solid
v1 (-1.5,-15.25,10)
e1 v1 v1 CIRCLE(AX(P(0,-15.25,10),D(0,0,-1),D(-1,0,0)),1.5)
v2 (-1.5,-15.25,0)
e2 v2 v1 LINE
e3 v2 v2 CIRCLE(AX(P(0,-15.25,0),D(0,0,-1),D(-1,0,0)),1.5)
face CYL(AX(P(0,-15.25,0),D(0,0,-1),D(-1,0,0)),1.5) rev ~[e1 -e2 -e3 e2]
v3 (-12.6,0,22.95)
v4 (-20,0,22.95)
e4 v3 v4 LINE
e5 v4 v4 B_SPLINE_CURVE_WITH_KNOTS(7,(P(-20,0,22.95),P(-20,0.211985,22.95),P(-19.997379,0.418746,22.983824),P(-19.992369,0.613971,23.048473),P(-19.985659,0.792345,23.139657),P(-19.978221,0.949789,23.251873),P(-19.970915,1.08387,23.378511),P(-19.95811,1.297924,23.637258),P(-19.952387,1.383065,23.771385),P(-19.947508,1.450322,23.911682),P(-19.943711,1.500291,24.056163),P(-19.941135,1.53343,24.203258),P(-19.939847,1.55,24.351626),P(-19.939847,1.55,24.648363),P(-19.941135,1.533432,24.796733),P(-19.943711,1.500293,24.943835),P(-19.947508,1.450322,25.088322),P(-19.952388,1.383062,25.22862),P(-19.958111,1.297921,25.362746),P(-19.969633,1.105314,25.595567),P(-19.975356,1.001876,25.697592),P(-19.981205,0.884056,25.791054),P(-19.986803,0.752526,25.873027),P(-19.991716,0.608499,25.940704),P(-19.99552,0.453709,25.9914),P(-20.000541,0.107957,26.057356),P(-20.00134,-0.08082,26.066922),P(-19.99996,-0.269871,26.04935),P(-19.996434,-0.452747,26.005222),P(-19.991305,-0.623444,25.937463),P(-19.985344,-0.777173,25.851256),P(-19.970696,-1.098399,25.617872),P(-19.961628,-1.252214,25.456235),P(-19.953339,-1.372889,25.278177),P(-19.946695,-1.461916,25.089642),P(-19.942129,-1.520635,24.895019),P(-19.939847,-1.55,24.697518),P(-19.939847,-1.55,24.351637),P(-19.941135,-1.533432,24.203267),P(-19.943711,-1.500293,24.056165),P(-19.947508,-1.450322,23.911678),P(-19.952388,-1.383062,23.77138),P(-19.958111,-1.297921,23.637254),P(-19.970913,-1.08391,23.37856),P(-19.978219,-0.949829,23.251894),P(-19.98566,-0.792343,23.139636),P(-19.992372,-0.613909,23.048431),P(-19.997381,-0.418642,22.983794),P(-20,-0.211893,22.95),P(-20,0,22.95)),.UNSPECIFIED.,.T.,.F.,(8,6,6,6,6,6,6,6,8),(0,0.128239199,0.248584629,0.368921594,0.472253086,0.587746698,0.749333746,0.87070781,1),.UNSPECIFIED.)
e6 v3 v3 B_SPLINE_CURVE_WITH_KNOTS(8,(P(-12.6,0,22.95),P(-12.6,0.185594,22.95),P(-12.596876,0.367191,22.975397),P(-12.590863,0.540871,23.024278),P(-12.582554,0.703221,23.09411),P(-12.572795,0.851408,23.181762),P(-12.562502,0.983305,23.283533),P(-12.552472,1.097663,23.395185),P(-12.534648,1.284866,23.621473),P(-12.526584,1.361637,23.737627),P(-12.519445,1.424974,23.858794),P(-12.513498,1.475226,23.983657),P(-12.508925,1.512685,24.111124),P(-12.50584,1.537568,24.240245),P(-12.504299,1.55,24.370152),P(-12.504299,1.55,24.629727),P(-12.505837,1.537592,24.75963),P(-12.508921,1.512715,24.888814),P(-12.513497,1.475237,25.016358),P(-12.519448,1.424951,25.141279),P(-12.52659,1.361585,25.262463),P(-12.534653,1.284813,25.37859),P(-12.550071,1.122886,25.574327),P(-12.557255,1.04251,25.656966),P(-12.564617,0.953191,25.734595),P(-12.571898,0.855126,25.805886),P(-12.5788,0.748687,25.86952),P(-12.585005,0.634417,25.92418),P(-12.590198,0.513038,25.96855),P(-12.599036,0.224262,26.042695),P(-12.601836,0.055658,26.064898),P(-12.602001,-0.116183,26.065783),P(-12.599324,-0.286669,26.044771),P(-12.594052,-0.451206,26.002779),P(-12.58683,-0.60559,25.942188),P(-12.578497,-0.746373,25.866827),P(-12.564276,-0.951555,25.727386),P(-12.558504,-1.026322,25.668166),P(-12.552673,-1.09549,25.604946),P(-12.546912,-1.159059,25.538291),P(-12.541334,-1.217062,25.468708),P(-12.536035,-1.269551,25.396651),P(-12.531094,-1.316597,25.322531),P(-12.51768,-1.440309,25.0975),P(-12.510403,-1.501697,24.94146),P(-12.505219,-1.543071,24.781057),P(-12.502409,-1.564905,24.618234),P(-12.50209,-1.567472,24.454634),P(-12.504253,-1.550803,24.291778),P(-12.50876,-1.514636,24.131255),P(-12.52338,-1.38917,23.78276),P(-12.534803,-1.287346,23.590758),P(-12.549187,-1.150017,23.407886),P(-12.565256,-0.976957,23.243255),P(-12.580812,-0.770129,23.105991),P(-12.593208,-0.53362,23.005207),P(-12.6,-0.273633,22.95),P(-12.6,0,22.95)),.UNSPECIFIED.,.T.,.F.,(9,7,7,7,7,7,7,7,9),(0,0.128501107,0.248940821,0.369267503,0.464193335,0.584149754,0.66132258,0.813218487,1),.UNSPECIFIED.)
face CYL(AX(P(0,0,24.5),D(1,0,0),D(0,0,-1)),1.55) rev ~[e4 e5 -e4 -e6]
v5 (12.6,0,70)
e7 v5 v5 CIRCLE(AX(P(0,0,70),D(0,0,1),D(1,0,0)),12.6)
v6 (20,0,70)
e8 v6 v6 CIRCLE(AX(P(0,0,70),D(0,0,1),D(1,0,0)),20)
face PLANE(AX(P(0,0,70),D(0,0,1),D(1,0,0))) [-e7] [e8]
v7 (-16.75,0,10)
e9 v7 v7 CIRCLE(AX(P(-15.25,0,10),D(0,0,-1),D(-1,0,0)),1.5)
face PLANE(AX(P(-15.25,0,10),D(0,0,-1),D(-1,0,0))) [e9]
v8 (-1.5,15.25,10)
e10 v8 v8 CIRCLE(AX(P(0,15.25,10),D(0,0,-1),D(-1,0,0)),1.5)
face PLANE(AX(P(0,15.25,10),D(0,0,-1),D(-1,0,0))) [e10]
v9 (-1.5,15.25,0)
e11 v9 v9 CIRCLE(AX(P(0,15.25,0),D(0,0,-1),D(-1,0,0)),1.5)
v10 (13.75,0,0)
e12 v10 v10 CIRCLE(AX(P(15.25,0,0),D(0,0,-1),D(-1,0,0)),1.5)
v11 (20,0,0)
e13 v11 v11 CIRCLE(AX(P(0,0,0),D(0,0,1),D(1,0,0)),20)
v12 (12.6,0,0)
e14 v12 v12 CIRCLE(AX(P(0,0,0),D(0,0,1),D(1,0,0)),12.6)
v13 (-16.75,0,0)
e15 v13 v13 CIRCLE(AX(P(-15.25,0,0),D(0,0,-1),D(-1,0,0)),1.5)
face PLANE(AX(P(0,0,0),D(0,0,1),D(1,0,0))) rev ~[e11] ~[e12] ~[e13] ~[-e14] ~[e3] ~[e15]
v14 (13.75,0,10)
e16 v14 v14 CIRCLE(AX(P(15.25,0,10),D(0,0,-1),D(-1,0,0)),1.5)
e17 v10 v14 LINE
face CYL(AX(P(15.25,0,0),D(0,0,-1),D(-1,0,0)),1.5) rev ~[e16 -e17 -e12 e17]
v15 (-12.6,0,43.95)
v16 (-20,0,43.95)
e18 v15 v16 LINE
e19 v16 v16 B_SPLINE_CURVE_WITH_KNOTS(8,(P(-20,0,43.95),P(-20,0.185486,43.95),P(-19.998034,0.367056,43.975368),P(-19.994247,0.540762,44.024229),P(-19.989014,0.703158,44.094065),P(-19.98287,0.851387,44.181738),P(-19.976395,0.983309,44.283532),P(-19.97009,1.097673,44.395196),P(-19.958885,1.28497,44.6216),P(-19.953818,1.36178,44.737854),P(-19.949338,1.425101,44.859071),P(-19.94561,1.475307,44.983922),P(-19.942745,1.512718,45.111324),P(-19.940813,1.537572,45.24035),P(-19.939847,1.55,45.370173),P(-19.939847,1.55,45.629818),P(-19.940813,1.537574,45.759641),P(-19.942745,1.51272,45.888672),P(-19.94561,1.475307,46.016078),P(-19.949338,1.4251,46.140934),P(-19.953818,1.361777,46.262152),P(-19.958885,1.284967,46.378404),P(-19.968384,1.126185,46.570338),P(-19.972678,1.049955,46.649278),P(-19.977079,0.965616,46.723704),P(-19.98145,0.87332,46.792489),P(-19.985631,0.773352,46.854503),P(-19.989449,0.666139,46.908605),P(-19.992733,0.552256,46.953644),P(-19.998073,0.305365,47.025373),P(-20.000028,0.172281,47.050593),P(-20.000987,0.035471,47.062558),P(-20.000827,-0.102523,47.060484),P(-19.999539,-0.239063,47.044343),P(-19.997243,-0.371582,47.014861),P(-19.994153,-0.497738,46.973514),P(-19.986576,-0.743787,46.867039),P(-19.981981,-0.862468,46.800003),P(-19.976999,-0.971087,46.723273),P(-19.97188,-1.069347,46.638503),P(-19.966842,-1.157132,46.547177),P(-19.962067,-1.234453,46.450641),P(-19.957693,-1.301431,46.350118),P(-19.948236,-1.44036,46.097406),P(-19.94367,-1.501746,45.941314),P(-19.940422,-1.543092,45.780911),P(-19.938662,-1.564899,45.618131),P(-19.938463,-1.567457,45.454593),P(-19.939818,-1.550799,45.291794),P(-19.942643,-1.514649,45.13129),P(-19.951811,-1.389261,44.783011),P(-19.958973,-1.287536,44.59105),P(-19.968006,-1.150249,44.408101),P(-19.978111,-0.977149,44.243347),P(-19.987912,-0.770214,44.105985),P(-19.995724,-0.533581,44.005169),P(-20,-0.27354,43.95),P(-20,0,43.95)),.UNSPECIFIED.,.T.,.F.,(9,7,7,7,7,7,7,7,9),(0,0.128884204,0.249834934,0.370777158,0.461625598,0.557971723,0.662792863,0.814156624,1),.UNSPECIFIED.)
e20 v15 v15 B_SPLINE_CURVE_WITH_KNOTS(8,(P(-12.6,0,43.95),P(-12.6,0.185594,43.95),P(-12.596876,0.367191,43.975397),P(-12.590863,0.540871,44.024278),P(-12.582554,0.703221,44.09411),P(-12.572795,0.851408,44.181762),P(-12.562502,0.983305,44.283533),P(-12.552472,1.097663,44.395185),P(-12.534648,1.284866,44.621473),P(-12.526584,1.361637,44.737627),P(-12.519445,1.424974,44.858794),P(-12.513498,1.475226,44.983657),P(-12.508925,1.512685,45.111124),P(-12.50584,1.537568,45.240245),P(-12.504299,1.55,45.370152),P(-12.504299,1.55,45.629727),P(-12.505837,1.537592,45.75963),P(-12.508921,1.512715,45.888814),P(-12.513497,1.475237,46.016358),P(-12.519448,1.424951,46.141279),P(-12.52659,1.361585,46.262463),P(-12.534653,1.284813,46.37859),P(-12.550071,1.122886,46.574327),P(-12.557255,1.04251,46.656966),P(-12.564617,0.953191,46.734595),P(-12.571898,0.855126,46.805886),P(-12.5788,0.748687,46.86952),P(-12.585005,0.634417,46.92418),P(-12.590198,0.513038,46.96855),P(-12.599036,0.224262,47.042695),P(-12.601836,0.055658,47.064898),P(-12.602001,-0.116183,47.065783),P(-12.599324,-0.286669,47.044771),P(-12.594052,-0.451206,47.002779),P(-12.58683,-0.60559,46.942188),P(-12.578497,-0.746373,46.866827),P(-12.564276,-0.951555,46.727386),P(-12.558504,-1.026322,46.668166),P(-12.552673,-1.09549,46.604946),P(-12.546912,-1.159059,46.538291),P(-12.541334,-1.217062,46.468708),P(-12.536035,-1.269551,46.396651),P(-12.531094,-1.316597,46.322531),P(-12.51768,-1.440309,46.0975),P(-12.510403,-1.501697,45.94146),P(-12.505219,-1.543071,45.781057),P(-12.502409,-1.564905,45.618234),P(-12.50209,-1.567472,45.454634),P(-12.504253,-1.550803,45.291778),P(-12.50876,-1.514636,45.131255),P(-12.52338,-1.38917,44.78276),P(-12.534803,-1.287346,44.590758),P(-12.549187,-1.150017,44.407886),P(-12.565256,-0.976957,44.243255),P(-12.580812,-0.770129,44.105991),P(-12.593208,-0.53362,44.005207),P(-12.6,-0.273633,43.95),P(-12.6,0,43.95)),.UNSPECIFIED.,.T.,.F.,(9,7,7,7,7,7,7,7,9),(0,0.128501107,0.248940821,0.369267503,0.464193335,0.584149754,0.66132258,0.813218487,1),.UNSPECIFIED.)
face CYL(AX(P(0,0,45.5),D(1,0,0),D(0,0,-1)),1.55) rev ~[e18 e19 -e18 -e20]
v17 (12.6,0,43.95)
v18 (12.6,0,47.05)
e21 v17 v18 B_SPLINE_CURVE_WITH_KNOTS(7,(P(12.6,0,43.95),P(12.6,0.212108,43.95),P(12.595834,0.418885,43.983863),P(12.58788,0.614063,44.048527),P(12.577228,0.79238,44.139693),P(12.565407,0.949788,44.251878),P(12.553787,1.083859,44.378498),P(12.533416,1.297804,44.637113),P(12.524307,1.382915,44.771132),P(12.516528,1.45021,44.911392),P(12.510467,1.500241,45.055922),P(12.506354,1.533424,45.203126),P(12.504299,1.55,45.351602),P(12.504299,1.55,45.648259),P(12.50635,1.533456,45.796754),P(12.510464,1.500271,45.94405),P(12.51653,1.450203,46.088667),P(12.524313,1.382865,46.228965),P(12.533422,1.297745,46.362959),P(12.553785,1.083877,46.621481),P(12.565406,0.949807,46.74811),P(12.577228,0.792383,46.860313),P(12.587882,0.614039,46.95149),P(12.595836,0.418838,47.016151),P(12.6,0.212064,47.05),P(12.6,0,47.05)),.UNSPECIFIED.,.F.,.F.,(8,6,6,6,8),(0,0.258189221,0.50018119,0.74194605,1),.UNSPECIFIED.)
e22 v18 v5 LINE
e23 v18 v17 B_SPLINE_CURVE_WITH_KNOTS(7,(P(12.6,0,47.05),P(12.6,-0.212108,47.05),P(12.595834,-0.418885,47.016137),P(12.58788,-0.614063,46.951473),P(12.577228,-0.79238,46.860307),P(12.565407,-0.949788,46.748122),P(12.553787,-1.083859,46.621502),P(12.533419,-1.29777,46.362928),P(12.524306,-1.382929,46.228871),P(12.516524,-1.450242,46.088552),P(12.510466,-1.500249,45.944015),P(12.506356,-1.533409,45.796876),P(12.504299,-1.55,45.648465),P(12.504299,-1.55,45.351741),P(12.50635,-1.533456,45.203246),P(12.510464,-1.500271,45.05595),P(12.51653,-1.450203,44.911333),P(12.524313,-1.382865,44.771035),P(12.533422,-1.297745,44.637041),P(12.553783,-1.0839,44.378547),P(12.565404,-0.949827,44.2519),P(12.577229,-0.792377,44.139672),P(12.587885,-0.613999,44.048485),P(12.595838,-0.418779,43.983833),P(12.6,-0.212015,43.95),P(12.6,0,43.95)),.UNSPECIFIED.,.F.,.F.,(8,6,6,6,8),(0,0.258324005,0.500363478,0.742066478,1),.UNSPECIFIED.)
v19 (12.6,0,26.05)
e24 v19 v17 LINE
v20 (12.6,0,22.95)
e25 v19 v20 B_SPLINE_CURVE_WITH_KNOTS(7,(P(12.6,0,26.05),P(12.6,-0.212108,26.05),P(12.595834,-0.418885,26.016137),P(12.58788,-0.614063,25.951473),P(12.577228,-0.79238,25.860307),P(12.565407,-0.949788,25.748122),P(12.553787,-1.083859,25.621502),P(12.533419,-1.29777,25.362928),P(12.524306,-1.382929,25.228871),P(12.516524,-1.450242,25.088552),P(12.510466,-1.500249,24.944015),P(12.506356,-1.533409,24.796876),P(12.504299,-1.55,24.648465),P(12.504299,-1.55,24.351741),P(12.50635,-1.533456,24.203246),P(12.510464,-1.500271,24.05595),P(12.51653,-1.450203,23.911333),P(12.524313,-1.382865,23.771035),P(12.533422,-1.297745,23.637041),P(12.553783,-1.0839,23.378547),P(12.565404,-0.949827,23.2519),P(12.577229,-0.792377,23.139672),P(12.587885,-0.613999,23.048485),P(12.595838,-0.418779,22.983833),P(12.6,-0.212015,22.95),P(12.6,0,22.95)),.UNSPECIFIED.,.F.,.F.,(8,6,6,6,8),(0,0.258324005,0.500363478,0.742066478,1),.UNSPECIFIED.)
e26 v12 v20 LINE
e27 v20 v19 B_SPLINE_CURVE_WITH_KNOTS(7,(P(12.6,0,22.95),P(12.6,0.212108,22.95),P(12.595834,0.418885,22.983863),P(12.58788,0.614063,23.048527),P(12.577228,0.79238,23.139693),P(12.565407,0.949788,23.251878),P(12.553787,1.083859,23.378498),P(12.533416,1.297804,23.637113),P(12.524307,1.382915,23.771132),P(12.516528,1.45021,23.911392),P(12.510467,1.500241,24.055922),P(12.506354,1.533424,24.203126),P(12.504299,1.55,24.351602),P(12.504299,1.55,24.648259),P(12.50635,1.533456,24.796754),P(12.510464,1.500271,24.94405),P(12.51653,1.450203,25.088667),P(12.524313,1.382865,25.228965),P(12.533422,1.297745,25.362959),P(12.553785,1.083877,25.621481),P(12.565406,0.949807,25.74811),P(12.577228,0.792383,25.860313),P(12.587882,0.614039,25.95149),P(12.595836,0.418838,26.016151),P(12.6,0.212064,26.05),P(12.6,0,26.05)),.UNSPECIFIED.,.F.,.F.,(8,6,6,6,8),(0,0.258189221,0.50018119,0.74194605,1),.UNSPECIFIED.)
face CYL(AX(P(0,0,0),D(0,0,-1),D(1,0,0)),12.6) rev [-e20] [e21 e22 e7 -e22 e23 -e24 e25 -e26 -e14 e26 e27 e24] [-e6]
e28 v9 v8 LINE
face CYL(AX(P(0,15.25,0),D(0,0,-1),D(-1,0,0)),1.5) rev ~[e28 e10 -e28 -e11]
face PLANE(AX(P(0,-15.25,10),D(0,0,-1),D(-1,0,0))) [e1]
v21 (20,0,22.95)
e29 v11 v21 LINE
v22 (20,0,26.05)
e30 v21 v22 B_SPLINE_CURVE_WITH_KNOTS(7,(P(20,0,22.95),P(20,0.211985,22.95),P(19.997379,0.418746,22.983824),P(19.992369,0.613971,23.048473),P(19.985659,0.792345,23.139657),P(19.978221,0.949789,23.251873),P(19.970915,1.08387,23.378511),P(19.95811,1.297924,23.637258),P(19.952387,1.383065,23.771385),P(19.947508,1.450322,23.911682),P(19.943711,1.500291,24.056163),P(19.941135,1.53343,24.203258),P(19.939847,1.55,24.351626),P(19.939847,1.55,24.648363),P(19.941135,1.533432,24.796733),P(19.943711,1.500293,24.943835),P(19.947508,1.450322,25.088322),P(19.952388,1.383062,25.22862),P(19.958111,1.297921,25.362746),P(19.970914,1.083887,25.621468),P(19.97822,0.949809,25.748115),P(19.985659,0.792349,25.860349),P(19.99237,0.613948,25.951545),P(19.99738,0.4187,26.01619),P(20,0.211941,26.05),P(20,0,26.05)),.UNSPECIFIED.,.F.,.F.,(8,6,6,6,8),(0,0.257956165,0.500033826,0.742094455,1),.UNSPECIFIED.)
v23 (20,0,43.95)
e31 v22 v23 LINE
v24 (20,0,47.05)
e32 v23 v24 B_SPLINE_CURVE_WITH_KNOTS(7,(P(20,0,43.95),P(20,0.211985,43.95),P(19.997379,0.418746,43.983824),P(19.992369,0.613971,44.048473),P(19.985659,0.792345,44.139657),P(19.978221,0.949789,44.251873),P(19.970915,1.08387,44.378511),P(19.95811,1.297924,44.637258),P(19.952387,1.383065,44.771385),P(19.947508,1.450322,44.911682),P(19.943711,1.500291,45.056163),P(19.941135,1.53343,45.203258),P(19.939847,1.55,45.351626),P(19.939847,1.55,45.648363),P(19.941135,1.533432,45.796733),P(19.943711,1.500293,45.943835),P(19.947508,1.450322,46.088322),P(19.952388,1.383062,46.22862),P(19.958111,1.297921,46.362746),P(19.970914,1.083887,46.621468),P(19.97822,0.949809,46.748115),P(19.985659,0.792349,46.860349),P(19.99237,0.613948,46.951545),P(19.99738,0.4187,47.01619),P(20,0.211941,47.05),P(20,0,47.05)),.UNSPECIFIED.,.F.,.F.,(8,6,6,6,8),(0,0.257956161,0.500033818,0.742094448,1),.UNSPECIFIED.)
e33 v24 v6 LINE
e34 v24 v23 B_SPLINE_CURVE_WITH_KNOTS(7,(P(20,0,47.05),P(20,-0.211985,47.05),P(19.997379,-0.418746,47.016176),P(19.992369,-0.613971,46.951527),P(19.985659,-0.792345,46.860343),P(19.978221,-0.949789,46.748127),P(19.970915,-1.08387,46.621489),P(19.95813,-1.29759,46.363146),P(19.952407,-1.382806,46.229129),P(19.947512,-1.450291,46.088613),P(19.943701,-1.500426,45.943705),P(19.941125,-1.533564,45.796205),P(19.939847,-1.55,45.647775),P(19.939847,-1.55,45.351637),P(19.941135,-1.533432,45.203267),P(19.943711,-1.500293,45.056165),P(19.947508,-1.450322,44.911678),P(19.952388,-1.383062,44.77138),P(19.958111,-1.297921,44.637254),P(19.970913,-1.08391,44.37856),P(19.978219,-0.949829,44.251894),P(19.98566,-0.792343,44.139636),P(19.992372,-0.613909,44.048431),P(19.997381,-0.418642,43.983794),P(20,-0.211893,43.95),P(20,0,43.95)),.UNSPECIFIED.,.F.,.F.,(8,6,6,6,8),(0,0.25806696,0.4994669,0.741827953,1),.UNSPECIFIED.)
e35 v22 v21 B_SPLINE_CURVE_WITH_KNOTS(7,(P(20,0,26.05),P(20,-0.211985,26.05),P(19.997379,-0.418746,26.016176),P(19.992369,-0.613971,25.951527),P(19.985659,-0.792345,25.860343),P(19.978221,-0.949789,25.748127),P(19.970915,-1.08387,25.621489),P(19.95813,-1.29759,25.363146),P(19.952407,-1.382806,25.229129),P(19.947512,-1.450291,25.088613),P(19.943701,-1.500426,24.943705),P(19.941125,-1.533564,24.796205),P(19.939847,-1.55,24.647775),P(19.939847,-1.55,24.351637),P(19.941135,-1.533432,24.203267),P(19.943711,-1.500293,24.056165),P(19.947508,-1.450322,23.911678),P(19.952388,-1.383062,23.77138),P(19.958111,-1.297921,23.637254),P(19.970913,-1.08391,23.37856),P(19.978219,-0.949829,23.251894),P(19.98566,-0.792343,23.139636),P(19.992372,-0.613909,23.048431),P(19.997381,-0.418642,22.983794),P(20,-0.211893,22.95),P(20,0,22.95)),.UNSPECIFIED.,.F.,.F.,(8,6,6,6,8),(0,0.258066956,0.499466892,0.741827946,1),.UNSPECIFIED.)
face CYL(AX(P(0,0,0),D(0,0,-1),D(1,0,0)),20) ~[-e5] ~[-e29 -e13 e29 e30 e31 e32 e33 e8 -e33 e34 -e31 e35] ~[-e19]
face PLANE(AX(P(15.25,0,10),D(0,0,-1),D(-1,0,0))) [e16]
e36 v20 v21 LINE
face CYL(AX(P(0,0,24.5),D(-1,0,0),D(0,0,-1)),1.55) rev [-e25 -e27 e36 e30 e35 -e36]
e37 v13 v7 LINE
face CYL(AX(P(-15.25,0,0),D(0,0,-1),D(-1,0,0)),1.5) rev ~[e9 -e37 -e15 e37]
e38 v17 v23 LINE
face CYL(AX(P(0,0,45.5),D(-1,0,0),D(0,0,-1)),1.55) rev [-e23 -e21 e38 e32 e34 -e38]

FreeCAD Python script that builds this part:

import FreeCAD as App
import Part
import Sketcher

doc = App.newDocument("Part")
body = doc.addObject("PartDesign::Body", "Body")

sketch1 = body.newObject("Sketcher::SketchObject", "Sketch")
sketch1.AttachmentSupport = (doc.getObject("XY_Plane"), [""])
sketch1.MapMode = "FlatFace"
sketch1.addGeometry(Part.Circle(App.Vector(0, 0, 0), App.Vector(0, 0, 1), 20), False)
sketch1.addGeometry(Part.Circle(App.Vector(0, 0, 0), App.Vector(0, 0, 1), 12.6), False)
sketch1.addConstraint(Sketcher.Constraint("Coincident", 0, 3, -1, 1))
sketch1.addConstraint(Sketcher.Constraint("Coincident", 1, 3, -1, 1))
sketch1.addConstraint(Sketcher.Constraint("Diameter", 0, 40.0))
sketch1.addConstraint(Sketcher.Constraint("Diameter", 1, 25.2))
pad1 = body.newObject("PartDesign::Pad", "Pad")
pad1.Profile = sketch1
pad1.Length = 70

sketch2 = body.newObject("Sketcher::SketchObject", "Sketch001")
sketch2.AttachmentSupport = (doc.getObject("XY_Plane"), [""])
sketch2.MapMode = "FlatFace"
sketch2.addGeometry(Part.Circle(App.Vector(0, 15.25, 0), App.Vector(0, 0, 1), 1.5), False)
sketch2.addGeometry(Part.Circle(App.Vector(-15.25, 0, 0), App.Vector(0, 0, 1), 1.5), False)
sketch2.addGeometry(Part.Circle(App.Vector(0, -15.25, 0), App.Vector(0, 0, 1), 1.5), False)
sketch2.addGeometry(Part.Circle(App.Vector(15.25, 0, 0), App.Vector(0, 0, 1), 1.5), False)
sketch2.addConstraint(Sketcher.Constraint("Equal", 0, 1))
sketch2.addConstraint(Sketcher.Constraint("Equal", 1, 2))
sketch2.addConstraint(Sketcher.Constraint("Equal", 2, 3))
sketch2.addConstraint(Sketcher.Constraint("Symmetric", 0, 3, 2, 3, -1, 1))
sketch2.addConstraint(Sketcher.Constraint("Symmetric", 1, 3, 3, 3, -1, 1))
sketch2.addConstraint(Sketcher.Constraint("PointOnObject", 0, 3, -2))
sketch2.addConstraint(Sketcher.Constraint("PointOnObject", 1, 3, -1))
sketch2.addConstraint(Sketcher.Constraint("Diameter", 0, 3.0))
sketch2.addConstraint(Sketcher.Constraint("DistanceY", 2, 3, 0, 3, 30.5))
sketch2.addConstraint(Sketcher.Constraint("DistanceX", 1, 3, 3, 3, 30.5))
pocket1 = body.newObject("PartDesign::Pocket", "Pocket")
pocket1.Profile = sketch2
pocket1.Length = 10
pocket1.Reversed = True

sketch3 = body.newObject("Sketcher::SketchObject", "Sketch002")
sketch3.AttachmentSupport = (doc.getObject("YZ_Plane"), [""])
sketch3.MapMode = "FlatFace"
sketch3.addGeometry(Part.Circle(App.Vector(0, 45.5, 0), App.Vector(0, 0, 1), 1.55), False)
sketch3.addGeometry(Part.Circle(App.Vector(0, 24.5, 0), App.Vector(0, 0, 1), 1.55), False)
sketch3.addConstraint(Sketcher.Constraint("Equal", 0, 1))
sketch3.addConstraint(Sketcher.Constraint("PointOnObject", 0, 3, -2))
sketch3.addConstraint(Sketcher.Constraint("PointOnObject", 1, 3, -2))
sketch3.addConstraint(Sketcher.Constraint("Diameter", 0, 3.1))
sketch3.addConstraint(Sketcher.Constraint("DistanceY", 1, 3, 0, 3, 21.0))
sketch3.addConstraint(Sketcher.Constraint("DistanceY", -1, 1, 0, 3, 45.5))
pocket2 = body.newObject("PartDesign::Pocket", "Pocket001")
pocket2.Profile = sketch3
pocket2.Type = "ThroughAll"
pocket2.Midplane = True

doc.recompute()
